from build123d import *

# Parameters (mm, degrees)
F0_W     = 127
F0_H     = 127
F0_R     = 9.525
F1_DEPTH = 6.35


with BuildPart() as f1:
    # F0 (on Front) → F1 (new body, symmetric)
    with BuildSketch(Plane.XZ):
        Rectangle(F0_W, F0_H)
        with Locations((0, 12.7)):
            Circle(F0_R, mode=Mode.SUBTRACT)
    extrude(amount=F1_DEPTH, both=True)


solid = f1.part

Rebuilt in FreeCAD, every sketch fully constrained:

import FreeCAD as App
import Part
import Sketcher
Q = App.Units.Quantity


def add_polygon(sketch, points):
    """Adds a closed chain of lines whose ends are joined by coincident constraints."""
    first, n = sketch.GeometryCount, len(points)
    for a, b in zip(points, points[1:] + points[:1]):
        sketch.addGeometry(Part.LineSegment(App.Vector(*a, 0), App.Vector(*b, 0)), False)
    for i in range(n):
        sketch.addConstraint(Sketcher.Constraint("Coincident", first + i, 2, first + (i + 1) % n, 1))

doc = App.newDocument("Part")
body = doc.addObject("PartDesign::Body", "Body")

# Sketch on XZ plane
sketch1 = body.newObject("Sketcher::SketchObject", "Sketch")
sketch1.AttachmentSupport = (doc.getObject("XZ_Plane"), [""])
sketch1.MapMode = "FlatFace"
add_polygon(sketch1, [(-64, 64), (-64, -64), (64, -64), (64, 64)])  # lines 0-3
sketch1.addGeometry(Part.Circle(App.Vector(0, 13, 0), App.Vector(0, 0, 1), 10), False)  # 4
sketch1.addConstraint([
    Sketcher.Constraint("Vertical", 0),
    Sketcher.Constraint("Horizontal", 1),
    Sketcher.Constraint("Vertical", 2),
    Sketcher.Constraint("Horizontal", 3),
    Sketcher.Constraint("Symmetric", 0, 2, 2, 2, -1, 1),
    Sketcher.Constraint("PointOnObject", 4, 3, -2),
    Sketcher.Constraint("Equal", 3, 0),
    Sketcher.Constraint("Diameter", 4, Q("0.75 in")),
    Sketcher.Constraint("DistanceX", 1, 1, 1, 2, Q("5 in")),
    Sketcher.Constraint("DistanceY", 0, 2, 4, 3, Q("3 in")),
])
pad1 = body.newObject("PartDesign::Pad", "Pad")
pad1.Profile = sketch1
pad1.Length = Q("0.5 in")
pad1.Midplane = True

doc.recompute()
